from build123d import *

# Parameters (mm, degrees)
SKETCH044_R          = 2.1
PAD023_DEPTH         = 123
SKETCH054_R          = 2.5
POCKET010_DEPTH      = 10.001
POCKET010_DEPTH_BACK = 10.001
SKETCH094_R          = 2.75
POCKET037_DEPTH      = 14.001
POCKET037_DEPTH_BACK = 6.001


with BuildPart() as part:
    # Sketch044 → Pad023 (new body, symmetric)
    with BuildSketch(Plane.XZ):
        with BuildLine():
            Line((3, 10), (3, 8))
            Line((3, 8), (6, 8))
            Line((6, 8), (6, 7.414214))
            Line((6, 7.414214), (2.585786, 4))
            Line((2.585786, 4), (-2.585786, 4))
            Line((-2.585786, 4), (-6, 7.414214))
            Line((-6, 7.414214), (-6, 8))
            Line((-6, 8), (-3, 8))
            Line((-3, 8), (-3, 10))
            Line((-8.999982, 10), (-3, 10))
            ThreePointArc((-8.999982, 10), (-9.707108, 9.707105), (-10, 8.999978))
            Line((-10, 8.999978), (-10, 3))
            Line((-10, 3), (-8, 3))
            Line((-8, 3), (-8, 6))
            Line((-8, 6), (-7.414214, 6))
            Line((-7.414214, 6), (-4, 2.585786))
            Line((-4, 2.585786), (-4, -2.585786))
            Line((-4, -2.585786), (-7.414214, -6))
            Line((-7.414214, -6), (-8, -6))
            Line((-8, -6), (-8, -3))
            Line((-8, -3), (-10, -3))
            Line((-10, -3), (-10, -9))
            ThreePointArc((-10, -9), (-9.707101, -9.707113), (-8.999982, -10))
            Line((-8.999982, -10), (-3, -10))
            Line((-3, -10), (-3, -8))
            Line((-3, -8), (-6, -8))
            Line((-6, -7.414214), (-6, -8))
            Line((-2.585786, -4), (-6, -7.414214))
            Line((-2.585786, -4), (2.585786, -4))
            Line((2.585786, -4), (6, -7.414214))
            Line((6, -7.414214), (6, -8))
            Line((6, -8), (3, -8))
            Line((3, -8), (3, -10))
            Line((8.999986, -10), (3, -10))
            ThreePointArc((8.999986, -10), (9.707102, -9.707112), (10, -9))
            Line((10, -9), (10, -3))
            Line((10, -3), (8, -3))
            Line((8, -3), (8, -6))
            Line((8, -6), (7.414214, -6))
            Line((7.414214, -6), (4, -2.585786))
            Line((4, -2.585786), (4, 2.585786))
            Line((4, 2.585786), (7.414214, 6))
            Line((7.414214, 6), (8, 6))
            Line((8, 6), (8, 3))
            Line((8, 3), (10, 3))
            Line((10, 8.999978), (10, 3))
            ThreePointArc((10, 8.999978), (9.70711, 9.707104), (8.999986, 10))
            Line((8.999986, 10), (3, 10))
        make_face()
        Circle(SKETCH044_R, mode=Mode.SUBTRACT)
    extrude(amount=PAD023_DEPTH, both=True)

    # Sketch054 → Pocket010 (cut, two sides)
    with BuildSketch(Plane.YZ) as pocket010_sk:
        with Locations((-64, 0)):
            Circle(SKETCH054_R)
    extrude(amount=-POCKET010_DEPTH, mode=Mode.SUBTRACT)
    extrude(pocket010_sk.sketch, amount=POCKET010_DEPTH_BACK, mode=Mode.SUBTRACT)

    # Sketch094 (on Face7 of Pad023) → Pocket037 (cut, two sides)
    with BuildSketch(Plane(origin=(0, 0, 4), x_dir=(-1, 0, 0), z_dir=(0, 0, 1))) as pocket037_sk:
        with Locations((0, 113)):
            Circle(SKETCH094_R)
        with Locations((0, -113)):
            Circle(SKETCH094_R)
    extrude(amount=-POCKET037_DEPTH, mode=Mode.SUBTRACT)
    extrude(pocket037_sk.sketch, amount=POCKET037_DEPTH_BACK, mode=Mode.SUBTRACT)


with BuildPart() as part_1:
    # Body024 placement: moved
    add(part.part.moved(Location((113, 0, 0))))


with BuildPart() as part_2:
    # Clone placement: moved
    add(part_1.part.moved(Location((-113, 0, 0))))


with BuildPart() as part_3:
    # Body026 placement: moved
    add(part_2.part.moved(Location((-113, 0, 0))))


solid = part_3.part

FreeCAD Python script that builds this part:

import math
import FreeCAD as App
import Part
import Sketcher
Q = App.Units.Quantity

doc = App.newDocument("Part")
body = doc.addObject("PartDesign::Body", "Body")

sketch1 = body.newObject("Sketcher::SketchObject", "Sketch")
sketch1.AttachmentSupport = (doc.getObject("XZ_Plane"), [""])
sketch1.MapMode = "FlatFace"
sketch1.addGeometry([
    Part.LineSegment(App.Vector(3, 10, 0), App.Vector(3, 8, 0)),
    Part.LineSegment(App.Vector(3, 8, 0), App.Vector(6, 8, 0)),
    Part.LineSegment(App.Vector(6, 8, 0), App.Vector(6, 7.414214, 0)),
    Part.LineSegment(App.Vector(6, 7.414214, 0), App.Vector(2.585786, 4, 0)),
    Part.LineSegment(App.Vector(2.585786, 4, 0), App.Vector(-2.585786, 4, 0)),
    Part.LineSegment(App.Vector(-2.585786, 4, 0), App.Vector(-6, 7.414214, 0)),
    Part.LineSegment(App.Vector(-6, 7.414214, 0), App.Vector(-6, 8, 0)),
    Part.LineSegment(App.Vector(-6, 8, 0), App.Vector(-3, 8, 0)),
    Part.LineSegment(App.Vector(-3, 8, 0), App.Vector(-3, 10, 0)),
    Part.LineSegment(App.Vector(-3, 10, 0), App.Vector(-8.999982, 10, 0)),
    Part.ArcOfCircle(Part.Circle(App.Vector(-8.999999, 8.999999, 0), App.Vector(0, 0, 1), 1.000001), math.radians(89.999024), math.radians(180.001205)),
    Part.LineSegment(App.Vector(-10, 8.999978, 0), App.Vector(-10, 3, 0)),
    Part.LineSegment(App.Vector(-10, 3, 0), App.Vector(-8, 3, 0)),
    Part.LineSegment(App.Vector(-8, 3, 0), App.Vector(-8, 6, 0)),
    Part.LineSegment(App.Vector(-8, 6, 0), App.Vector(-7.414214, 6, 0)),
    Part.LineSegment(App.Vector(-7.414214, 6, 0), App.Vector(-4, 2.585786, 0)),
    Part.LineSegment(App.Vector(-4, 2.585786, 0), App.Vector(-4, -2.585786, 0)),
    Part.LineSegment(App.Vector(-4, -2.585786, 0), App.Vector(-7.414214, -6, 0)),
    Part.LineSegment(App.Vector(-7.414214, -6, 0), App.Vector(-8, -6, 0)),
    Part.LineSegment(App.Vector(-8, -6, 0), App.Vector(-8, -3, 0)),
    Part.LineSegment(App.Vector(-8, -3, 0), App.Vector(-10, -3, 0)),
    Part.LineSegment(App.Vector(-10, -3, 0), App.Vector(-10, -9, 0)),
    Part.ArcOfCircle(Part.Circle(App.Vector(-9.000001, -9.000001, 0), App.Vector(0, 0, 1), 0.999999), math.radians(179.999957), math.radians(270.001074)),
    Part.LineSegment(App.Vector(-8.999982, -10, 0), App.Vector(-3, -10, 0)),
    Part.LineSegment(App.Vector(-3, -10, 0), App.Vector(-3, -8, 0)),
    Part.LineSegment(App.Vector(-3, -8, 0), App.Vector(-6, -8, 0)),
    Part.LineSegment(App.Vector(-6, -8, 0), App.Vector(-6, -7.414214, 0)),
    Part.LineSegment(App.Vector(-6, -7.414214, 0), App.Vector(-2.585786, -4, 0)),
    Part.LineSegment(App.Vector(-2.585786, -4, 0), App.Vector(2.585786, -4, 0)),
    Part.LineSegment(App.Vector(2.585786, -4, 0), App.Vector(6, -7.414214, 0)),
    Part.LineSegment(App.Vector(6, -7.414214, 0), App.Vector(6, -8, 0)),
    Part.LineSegment(App.Vector(6, -8, 0), App.Vector(3, -8, 0)),
    Part.LineSegment(App.Vector(3, -8, 0), App.Vector(3, -10, 0)),
    Part.LineSegment(App.Vector(3, -10, 0), App.Vector(8.999986, -10, 0)),
    Part.ArcOfCircle(Part.Circle(App.Vector(9.000001, -9.000001, 0), App.Vector(0, 0, 1), 0.999999), math.radians(-90.000845), math.radians(0.000043)),
    Part.LineSegment(App.Vector(10, -9, 0), App.Vector(10, -3, 0)),
    Part.LineSegment(App.Vector(10, -3, 0), App.Vector(8, -3, 0)),
    Part.LineSegment(App.Vector(8, -3, 0), App.Vector(8, -6, 0)),
    Part.LineSegment(App.Vector(8, -6, 0), App.Vector(7.414214, -6, 0)),
    Part.LineSegment(App.Vector(7.414214, -6, 0), App.Vector(4, -2.585786, 0)),
    Part.LineSegment(App.Vector(4, -2.585786, 0), App.Vector(4, 2.585786, 0)),
    Part.LineSegment(App.Vector(4, 2.585786, 0), App.Vector(7.414214, 6, 0)),
    Part.LineSegment(App.Vector(7.414214, 6, 0), App.Vector(8, 6, 0)),
    Part.LineSegment(App.Vector(8, 6, 0), App.Vector(8, 3, 0)),
    Part.LineSegment(App.Vector(8, 3, 0), App.Vector(10, 3, 0)),
    Part.LineSegment(App.Vector(10, 3, 0), App.Vector(10, 8.999978, 0)),
    Part.ArcOfCircle(Part.Circle(App.Vector(9.000001, 9.000001, 0), App.Vector(0, 0, 1), 0.999999), math.radians(-0.001303), math.radians(90.000845)),
    Part.LineSegment(App.Vector(8.999986, 10, 0), App.Vector(3, 10, 0)),
    Part.Circle(App.Vector(0, 0, 0), App.Vector(0, 0, 1), 2.1),
], False)
sketch1.addConstraint([
    Sketcher.Constraint("Coincident", 0, 2, 1, 1),
    Sketcher.Constraint("Coincident", 1, 2, 2, 1),
    Sketcher.Constraint("Coincident", 2, 2, 3, 1),
    Sketcher.Constraint("Coincident", 3, 2, 4, 1),
    Sketcher.Constraint("Coincident", 4, 2, 5, 1),
    Sketcher.Constraint("Coincident", 5, 2, 6, 1),
    Sketcher.Constraint("Coincident", 6, 2, 7, 1),
    Sketcher.Constraint("Coincident", 7, 2, 8, 1),
    Sketcher.Constraint("Coincident", 8, 2, 9, 1),
    Sketcher.Constraint("Coincident", 9, 2, 10, 1),
    Sketcher.Constraint("Coincident", 10, 2, 11, 1),
    Sketcher.Constraint("Coincident", 11, 2, 12, 1),
    Sketcher.Constraint("Coincident", 12, 2, 13, 1),
    Sketcher.Constraint("Coincident", 13, 2, 14, 1),
    Sketcher.Constraint("Coincident", 14, 2, 15, 1),
    Sketcher.Constraint("Coincident", 15, 2, 16, 1),
    Sketcher.Constraint("Coincident", 16, 2, 17, 1),
    Sketcher.Constraint("Coincident", 17, 2, 18, 1),
    Sketcher.Constraint("Coincident", 18, 2, 19, 1),
    Sketcher.Constraint("Coincident", 19, 2, 20, 1),
    Sketcher.Constraint("Coincident", 20, 2, 21, 1),
    Sketcher.Constraint("Tangent", 21, 2, 22, 1),
    Sketcher.Constraint("Coincident", 22, 2, 23, 1),
    Sketcher.Constraint("Coincident", 23, 2, 24, 1),
    Sketcher.Constraint("Coincident", 24, 2, 25, 1),
    Sketcher.Constraint("Coincident", 25, 2, 26, 1),
    Sketcher.Constraint("Coincident", 26, 2, 27, 1),
    Sketcher.Constraint("Coincident", 27, 2, 28, 1),
    Sketcher.Constraint("Coincident", 28, 2, 29, 1),
    Sketcher.Constraint("Coincident", 29, 2, 30, 1),
    Sketcher.Constraint("Coincident", 30, 2, 31, 1),
    Sketcher.Constraint("Coincident", 31, 2, 32, 1),
    Sketcher.Constraint("Coincident", 32, 2, 33, 1),
    Sketcher.Constraint("Coincident", 33, 2, 34, 1),
    Sketcher.Constraint("Tangent", 34, 2, 35, 1),
    Sketcher.Constraint("Coincident", 35, 2, 36, 1),
    Sketcher.Constraint("Coincident", 36, 2, 37, 1),
    Sketcher.Constraint("Coincident", 37, 2, 38, 1),
    Sketcher.Constraint("Coincident", 38, 2, 39, 1),
    Sketcher.Constraint("Coincident", 39, 2, 40, 1),
    Sketcher.Constraint("Coincident", 40, 2, 41, 1),
    Sketcher.Constraint("Coincident", 41, 2, 42, 1),
    Sketcher.Constraint("Coincident", 42, 2, 43, 1),
    Sketcher.Constraint("Coincident", 43, 2, 44, 1),
    Sketcher.Constraint("Coincident", 44, 2, 45, 1),
    Sketcher.Constraint("Coincident", 45, 2, 46, 1),
    Sketcher.Constraint("Coincident", 46, 2, 47, 1),
    Sketcher.Constraint("Coincident", 47, 2, 0, 1),
    Sketcher.Constraint("Vertical", 0),
    Sketcher.Constraint("Horizontal", 1),
    Sketcher.Constraint("Vertical", 2),
    Sketcher.Constraint("Horizontal", 4),
    Sketcher.Constraint("Vertical", 6),
    Sketcher.Constraint("Horizontal", 7),
    Sketcher.Constraint("Vertical", 8),
    Sketcher.Constraint("Horizontal", 9),
    Sketcher.Constraint("Vertical", 11),
    Sketcher.Constraint("Horizontal", 12),
    Sketcher.Constraint("Vertical", 13),
    Sketcher.Constraint("Horizontal", 14),
    Sketcher.Constraint("Vertical", 16),
    Sketcher.Constraint("Horizontal", 18),
    Sketcher.Constraint("Vertical", 19),
    Sketcher.Constraint("Horizontal", 20),
    Sketcher.Constraint("Vertical", 21),
    Sketcher.Constraint("Horizontal", 23),
    Sketcher.Constraint("Vertical", 24),
    Sketcher.Constraint("Horizontal", 25),
    Sketcher.Constraint("Vertical", 26),
    Sketcher.Constraint("Horizontal", 28),
    Sketcher.Constraint("Vertical", 30),
    Sketcher.Constraint("Horizontal", 31),
    Sketcher.Constraint("Vertical", 32),
    Sketcher.Constraint("Horizontal", 33),
    Sketcher.Constraint("Vertical", 35),
    Sketcher.Constraint("Horizontal", 36),
    Sketcher.Constraint("Vertical", 37),
    Sketcher.Constraint("Horizontal", 38),
    Sketcher.Constraint("Vertical", 40),
    Sketcher.Constraint("Horizontal", 42),
    Sketcher.Constraint("Vertical", 43),
    Sketcher.Constraint("Horizontal", 44),
    Sketcher.Constraint("Vertical", 45),
    Sketcher.Constraint("Horizontal", 47),
    Sketcher.Constraint("Coincident", 48, 3, -1, 1),
    Sketcher.Constraint("Equal", 10, 22),
    Sketcher.Constraint("Equal", 22, 34),
    Sketcher.Constraint("Equal", 34, 46),
    Sketcher.Constraint("Symmetric", 10, 3, 34, 3, -1, 1),
    Sketcher.Constraint("Symmetric", 22, 3, 46, 3, -1, 1),
    Sketcher.Constraint("Symmetric", 0, 2, 24, 2, -1, 1),
    Sketcher.Constraint("Symmetric", 2, 2, 26, 2, -1, 1),
    Sketcher.Constraint("Symmetric", 3, 2, 27, 2, -1, 1),
    Sketcher.Constraint("Symmetric", 5, 2, 29, 2, -1, 1),
    Sketcher.Constraint("Symmetric", 7, 2, 31, 2, -1, 1),
    Sketcher.Constraint("Symmetric", 12, 2, 36, 2, -1, 1),
    Sketcher.Constraint("Symmetric", 14, 2, 38, 2, -1, 1),
    Sketcher.Constraint("Symmetric", 15, 2, 39, 2, -1, 1),
    Sketcher.Constraint("Symmetric", 17, 2, 41, 2, -1, 1),
    Sketcher.Constraint("Symmetric", 19, 2, 43, 2, -1, 1),
    Sketcher.Constraint("Symmetric", 22, 3, 34, 3, -2),
    Sketcher.Constraint("Symmetric", 2, 2, 5, 2, -2),
    Sketcher.Constraint("Symmetric", 0, 2, 7, 2, -2),
    Sketcher.Constraint("Symmetric", 19, 2, 36, 2, -2),
    Sketcher.Constraint("Symmetric", 17, 2, 38, 2, -2),
    Sketcher.Constraint("Perpendicular", 3, 5),
    Sketcher.Constraint("Parallel", 5, 15),
    Sketcher.Constraint("Perpendicular", 15, 17),
    Sketcher.Constraint("Perpendicular", 27, 29),
    Sketcher.Constraint("Perpendicular", 39, 41),
    Sketcher.Constraint("Horizontal", 16, 2, 39, 2),
    Sketcher.Constraint("Horizontal", 10, 2, 45, 2),
    Sketcher.Constraint("Vertical", 9, 2, 22, 2),
    Sketcher.Constraint("Vertical", 33, 2, 46, 2),
    Sketcher.Constraint("Equal", 44, 0),
    Sketcher.Constraint("Equal", 42, 2),
    Sketcher.Constraint("Equal", 31, 13),
    Sketcher.Constraint("Equal", 28, 16),
    Sketcher.Constraint("Equal", 5, 15),
    Sketcher.Constraint("Radius", 10, Q("1.000001 mm")),
    Sketcher.Constraint("Diameter", 48, Q("4.2 mm")),
    Sketcher.Constraint("DistanceX", 1, 1, 1, 2, Q("3 mm")),
    Sketcher.Constraint("DistanceX", 12, 1, 12, 2, Q("2 mm")),
    Sketcher.Constraint("DistanceY", 21, 2, 21, 1, Q("6 mm")),
    Sketcher.Constraint("DistanceX", 10, 3, -1, 1, Q("8.999999 mm")),
    Sketcher.Constraint("DistanceY", -1, 1, 10, 3, Q("8.999999 mm")),
    Sketcher.Constraint("DistanceY", -1, 1, 3, 2, Q("4 mm")),
    Sketcher.Constraint("DistanceX", 9, 2, 9, 1, Q("5.999982 mm")),
    Sketcher.Constraint("DistanceY", 11, 2, 11, 1, Q("5.999978 mm")),
    Sketcher.Constraint("DistanceX", 4, 2, 4, 1, Q("5.171572 mm")),
    Sketcher.Constraint("DistanceX", 33, 1, 33, 2, Q("5.999986 mm")),
])
pad1 = body.newObject("PartDesign::Pad", "Pad")
pad1.Profile = sketch1
pad1.Length = 246
pad1.Midplane = True

sketch2 = body.newObject("Sketcher::SketchObject", "Sketch001")
sketch2.AttachmentSupport = (doc.getObject("YZ_Plane"), [""])
sketch2.MapMode = "FlatFace"
sketch2.addGeometry(Part.Circle(App.Vector(-64, 0, 0), App.Vector(0, 0, 1), 2.5), False)
sketch2.addConstraint([
    Sketcher.Constraint("PointOnObject", 0, 3, -1),
    Sketcher.Constraint("Diameter", 0, Q("5 mm")),
    Sketcher.Constraint("DistanceX", 0, 3, -1, 1, Q("64 mm")),
])
pocket1 = body.newObject("PartDesign::Pocket", "Pocket")
pocket1.Profile = sketch2
pocket1.Type = "ThroughAll"
pocket1.Midplane = True

sketch3 = body.newObject("Sketcher::SketchObject", "Sketch002")
sketch3.AttachmentSupport = (doc.getObject("XY_Plane"), [""])
sketch3.MapMode = "FlatFace"
sketch3.AttachmentOffset = App.Placement(App.Vector(0, 0, 4), App.Rotation())
sketch3.addGeometry([
    Part.Circle(App.Vector(0, -113, 0), App.Vector(0, 0, 1), 2.75),
    Part.Circle(App.Vector(0, 113, 0), App.Vector(0, 0, 1), 2.75),
], False)
sketch3.addConstraint([
    Sketcher.Constraint("Equal", 0, 1),
    Sketcher.Constraint("Symmetric", 0, 3, 1, 3, -1, 1),
    Sketcher.Constraint("PointOnObject", 0, 3, -2),
    Sketcher.Constraint("Diameter", 0, Q("5.5 mm")),
    Sketcher.Constraint("DistanceY", 0, 3, -1, 1, Q("113 mm")),
])
pocket2 = body.newObject("PartDesign::Pocket", "Pocket001")
pocket2.Profile = sketch3
pocket2.Type = "ThroughAll"
pocket2.Midplane = True
body2 = doc.addObject("PartDesign::Body", "Body001")
doc.recompute()

body.Placement = App.Placement(App.Vector(113, 0, 0), App.Rotation(App.Vector(0, 0, 1), 0))
boolean = body2.newObject("PartDesign::Boolean", "Boolean")
boolean.Type = "Fuse"
boolean.addObjects([body])
body3 = doc.addObject("PartDesign::Body", "Body002")
doc.recompute()

body2.Placement = App.Placement(App.Vector(-113, 0, 0), App.Rotation(App.Vector(0, 0, 1), 0))
boolean2 = body3.newObject("PartDesign::Boolean", "Boolean001")
boolean2.Type = "Fuse"
boolean2.addObjects([body2])
body4 = doc.addObject("PartDesign::Body", "Body003")
doc.recompute()

body3.Placement = App.Placement(App.Vector(-113, 0, 0), App.Rotation(App.Vector(0, 0, 1), 0))
boolean3 = body4.newObject("PartDesign::Boolean", "Boolean002")
boolean3.Type = "Fuse"
boolean3.addObjects([body3])

doc.recompute()
